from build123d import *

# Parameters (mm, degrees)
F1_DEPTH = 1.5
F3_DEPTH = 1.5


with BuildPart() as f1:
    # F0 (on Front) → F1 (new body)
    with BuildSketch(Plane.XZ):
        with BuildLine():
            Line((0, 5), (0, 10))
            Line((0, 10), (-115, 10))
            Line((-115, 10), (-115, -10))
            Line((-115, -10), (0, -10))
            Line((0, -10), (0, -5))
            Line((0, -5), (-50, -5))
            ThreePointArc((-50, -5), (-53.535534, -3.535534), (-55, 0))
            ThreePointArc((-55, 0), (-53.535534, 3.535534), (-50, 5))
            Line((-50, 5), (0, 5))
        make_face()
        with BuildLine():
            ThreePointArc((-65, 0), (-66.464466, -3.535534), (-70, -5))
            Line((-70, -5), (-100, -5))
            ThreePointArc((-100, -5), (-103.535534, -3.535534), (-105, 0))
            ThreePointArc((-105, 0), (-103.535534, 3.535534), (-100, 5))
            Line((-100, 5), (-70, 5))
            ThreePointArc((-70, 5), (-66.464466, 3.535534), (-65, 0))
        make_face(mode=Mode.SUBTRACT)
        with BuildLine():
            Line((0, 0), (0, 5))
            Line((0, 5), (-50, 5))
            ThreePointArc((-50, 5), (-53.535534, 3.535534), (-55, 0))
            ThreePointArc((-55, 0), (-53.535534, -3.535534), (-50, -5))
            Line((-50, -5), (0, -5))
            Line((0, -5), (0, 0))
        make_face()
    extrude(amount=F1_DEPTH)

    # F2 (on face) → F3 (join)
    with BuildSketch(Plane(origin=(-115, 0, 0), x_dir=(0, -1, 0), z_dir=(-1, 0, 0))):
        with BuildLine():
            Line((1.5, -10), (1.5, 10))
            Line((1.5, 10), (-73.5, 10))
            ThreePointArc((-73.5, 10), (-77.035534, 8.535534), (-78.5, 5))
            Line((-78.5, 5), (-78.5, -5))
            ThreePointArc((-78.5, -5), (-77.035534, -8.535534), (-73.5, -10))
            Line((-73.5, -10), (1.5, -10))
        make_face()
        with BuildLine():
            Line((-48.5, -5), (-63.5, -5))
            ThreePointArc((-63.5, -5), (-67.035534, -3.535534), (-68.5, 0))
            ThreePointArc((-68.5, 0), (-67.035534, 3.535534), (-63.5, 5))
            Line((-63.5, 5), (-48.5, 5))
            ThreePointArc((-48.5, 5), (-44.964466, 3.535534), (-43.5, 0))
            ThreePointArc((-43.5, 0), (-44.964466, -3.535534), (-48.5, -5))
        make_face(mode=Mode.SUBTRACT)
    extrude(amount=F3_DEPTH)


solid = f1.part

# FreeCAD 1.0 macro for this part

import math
import FreeCAD as App
import Part
import Sketcher
from FreeCAD import Vector
Q = App.Units.Quantity

doc = App.newDocument("Part")
body = doc.addObject("PartDesign::Body", "Body")

# Sketch on XZ plane
sketch1 = body.newObject("Sketcher::SketchObject", "Sketch")
sketch1.AttachmentSupport = (doc.getObject("XZ_Plane"), [""])
sketch1.MapMode = "FlatFace"
sketch1.addGeometry(Part.LineSegment(Vector(0, 10, 0), Vector(-115, 10, 0)), False)
sketch1.addGeometry(Part.LineSegment(Vector(-115, 10, 0), Vector(-115, -10, 0)), False)
sketch1.addGeometry(Part.LineSegment(Vector(-115, -10, 0), Vector(0, -10, 0)), False)
sketch1.addGeometry(Part.LineSegment(Vector(0, -10, 0), Vector(0, 10, 0)), False)
sketch1.addGeometry(Part.ArcOfCircle(Part.Circle(Vector(-70, 0, 0), Vector(0, 0, 1), 5), math.radians(0), math.radians(90)), False)
sketch1.addGeometry(Part.ArcOfCircle(Part.Circle(Vector(-70, 0, 0), Vector(0, 0, 1), 5), math.radians(-90), math.radians(0)), False)
sketch1.addGeometry(Part.LineSegment(Vector(-70, -5, 0), Vector(-100, -5, 0)), False)
sketch1.addGeometry(Part.ArcOfCircle(Part.Circle(Vector(-100, 0, 0), Vector(0, 0, 1), 5), math.radians(180), math.radians(270)), False)
sketch1.addGeometry(Part.ArcOfCircle(Part.Circle(Vector(-100, 0, 0), Vector(0, 0, 1), 5), math.radians(90), math.radians(180)), False)
sketch1.addGeometry(Part.LineSegment(Vector(-100, 5, 0), Vector(-70, 5, 0)), False)
sketch1.addConstraint(Sketcher.Constraint("Coincident", 0, 2, 1, 1))
sketch1.addConstraint(Sketcher.Constraint("Coincident", 1, 2, 2, 1))
sketch1.addConstraint(Sketcher.Constraint("Coincident", 2, 2, 3, 1))
sketch1.addConstraint(Sketcher.Constraint("Coincident", 3, 2, 0, 1))
sketch1.addConstraint(Sketcher.Constraint("Tangent", 4, 1, 5, 2))
sketch1.addConstraint(Sketcher.Constraint("Tangent", 5, 1, 6, 1))
sketch1.addConstraint(Sketcher.Constraint("Tangent", 6, 2, 7, 2))
sketch1.addConstraint(Sketcher.Constraint("Tangent", 7, 1, 8, 2))
sketch1.addConstraint(Sketcher.Constraint("Tangent", 8, 1, 9, 1))
sketch1.addConstraint(Sketcher.Constraint("Tangent", 9, 2, 4, 2))
sketch1.addConstraint(Sketcher.Constraint("Horizontal", 0))
sketch1.addConstraint(Sketcher.Constraint("Vertical", 1))
sketch1.addConstraint(Sketcher.Constraint("Horizontal", 2))
sketch1.addConstraint(Sketcher.Constraint("Vertical", 3))
sketch1.addConstraint(Sketcher.Constraint("Horizontal", 6))
sketch1.addConstraint(Sketcher.Constraint("Horizontal", 9))
sketch1.addConstraint(Sketcher.Constraint("Equal", 4, 5))
sketch1.addConstraint(Sketcher.Constraint("Equal", 5, 7))
sketch1.addConstraint(Sketcher.Constraint("Symmetric", 2, 2, 3, 2, -1, 1))
sketch1.addConstraint(Sketcher.Constraint("PointOnObject", 4, 3, -1))
sketch1.addConstraint(Sketcher.Constraint("PointOnObject", 4, 1, -1))
sketch1.addConstraint(Sketcher.Constraint("PointOnObject", 7, 1, -1))
sketch1.addConstraint(Sketcher.Constraint("Radius", 4, Q("5 mm")))
sketch1.addConstraint(Sketcher.Constraint("DistanceX", 0, 2, 0, 1, Q("115 mm")))
sketch1.addConstraint(Sketcher.Constraint("DistanceX", 6, 2, 6, 1, Q("30 mm")))
sketch1.addConstraint(Sketcher.Constraint("DistanceY", 1, 2, 1, 1, Q("20 mm")))
sketch1.addConstraint(Sketcher.Constraint("DistanceX", 4, 3, -1, 1, Q("70 mm")))
pad1 = body.newObject("PartDesign::Pad", "Pad")
pad1.Profile = sketch1
pad1.Length = 1.5

# Sketch on YZ plane
sketch2 = body.newObject("Sketcher::SketchObject", "Sketch001")
sketch2.AttachmentSupport = (doc.getObject("YZ_Plane"), [""])
sketch2.MapMode = "FlatFace"
sketch2.AttachmentOffset = App.Placement(Vector(0, 0, -115), App.Rotation())
sketch2.addGeometry(Part.LineSegment(Vector(-1.5, -10, 0), Vector(-1.5, 10, 0)), False)
sketch2.addGeometry(Part.LineSegment(Vector(-1.5, 10, 0), Vector(73.5, 10, 0)), False)
sketch2.addGeometry(Part.ArcOfCircle(Part.Circle(Vector(73.5, 5, 0), Vector(0, 0, 1), 5), math.radians(0), math.radians(90)), False)
sketch2.addGeometry(Part.LineSegment(Vector(78.5, 5, 0), Vector(78.5, -5, 0)), False)
sketch2.addGeometry(Part.ArcOfCircle(Part.Circle(Vector(73.5, -5, 0), Vector(0, 0, 1), 5), math.radians(-90), math.radians(0)), False)
sketch2.addGeometry(Part.LineSegment(Vector(73.5, -10, 0), Vector(-1.5, -10, 0)), False)
sketch2.addGeometry(Part.ArcOfCircle(Part.Circle(Vector(48.5, 0, 0), Vector(0, 0, 1), 5), math.radians(180), math.radians(270)), False)
sketch2.addGeometry(Part.LineSegment(Vector(48.5, -5, 0), Vector(63.5, -5, 0)), False)
sketch2.addGeometry(Part.ArcOfCircle(Part.Circle(Vector(63.5, 0, 0), Vector(0, 0, 1), 5), math.radians(-90), math.radians(0)), False)
sketch2.addGeometry(Part.ArcOfCircle(Part.Circle(Vector(63.5, 0, 0), Vector(0, 0, 1), 5), math.radians(0), math.radians(90)), False)
sketch2.addGeometry(Part.LineSegment(Vector(63.5, 5, 0), Vector(48.5, 5, 0)), False)
sketch2.addGeometry(Part.ArcOfCircle(Part.Circle(Vector(48.5, 0, 0), Vector(0, 0, 1), 5), math.radians(90), math.radians(180)), False)
sketch2.addConstraint(Sketcher.Constraint("Coincident", 0, 2, 1, 1))
sketch2.addConstraint(Sketcher.Constraint("Tangent", 1, 2, 2, 2))
sketch2.addConstraint(Sketcher.Constraint("Tangent", 2, 1, 3, 1))
sketch2.addConstraint(Sketcher.Constraint("Tangent", 3, 2, 4, 2))
sketch2.addConstraint(Sketcher.Constraint("Tangent", 4, 1, 5, 1))
sketch2.addConstraint(Sketcher.Constraint("Coincident", 5, 2, 0, 1))
sketch2.addConstraint(Sketcher.Constraint("Tangent", 6, 2, 7, 1))
sketch2.addConstraint(Sketcher.Constraint("Tangent", 7, 2, 8, 1))
sketch2.addConstraint(Sketcher.Constraint("Tangent", 8, 2, 9, 1))
sketch2.addConstraint(Sketcher.Constraint("Tangent", 9, 2, 10, 1))
sketch2.addConstraint(Sketcher.Constraint("Tangent", 10, 2, 11, 1))
sketch2.addConstraint(Sketcher.Constraint("Tangent", 11, 2, 6, 1))
sketch2.addConstraint(Sketcher.Constraint("Vertical", 0))
sketch2.addConstraint(Sketcher.Constraint("Horizontal", 1))
sketch2.addConstraint(Sketcher.Constraint("Vertical", 3))
sketch2.addConstraint(Sketcher.Constraint("Horizontal", 5))
sketch2.addConstraint(Sketcher.Constraint("Horizontal", 7))
sketch2.addConstraint(Sketcher.Constraint("Horizontal", 10))
sketch2.addConstraint(Sketcher.Constraint("Equal", 2, 4))
sketch2.addConstraint(Sketcher.Constraint("Equal", 4, 6))
sketch2.addConstraint(Sketcher.Constraint("Equal", 6, 8))
sketch2.addConstraint(Sketcher.Constraint("Equal", 8, 9))
sketch2.addConstraint(Sketcher.Constraint("PointOnObject", 6, 3, -1))
sketch2.addConstraint(Sketcher.Constraint("PointOnObject", 8, 2, -1))
sketch2.addConstraint(Sketcher.Constraint("PointOnObject", 11, 2, -1))
sketch2.addConstraint(Sketcher.Constraint("Horizontal", 3, 2, 6, 2))
sketch2.addConstraint(Sketcher.Constraint("Horizontal", 2, 1, 9, 2))
sketch2.addConstraint(Sketcher.Constraint("Radius", 2, Q("5 mm")))
sketch2.addConstraint(Sketcher.Constraint("DistanceX", 1, 1, 1, 2, Q("75 mm")))
sketch2.addConstraint(Sketcher.Constraint("DistanceX", 7, 1, 7, 2, Q("15 mm")))
sketch2.addConstraint(Sketcher.Constraint("DistanceX", 6, 3, 4, 3, Q("25.000001 mm")))
sketch2.addConstraint(Sketcher.Constraint("DistanceX", -1, 1, 2, 3, Q("73.5 mm")))
pad2 = body.newObject("PartDesign::Pad", "Pad001")
pad2.Profile = sketch2
pad2.Length = 1.5
pad2.Reversed = True

doc.recompute()
